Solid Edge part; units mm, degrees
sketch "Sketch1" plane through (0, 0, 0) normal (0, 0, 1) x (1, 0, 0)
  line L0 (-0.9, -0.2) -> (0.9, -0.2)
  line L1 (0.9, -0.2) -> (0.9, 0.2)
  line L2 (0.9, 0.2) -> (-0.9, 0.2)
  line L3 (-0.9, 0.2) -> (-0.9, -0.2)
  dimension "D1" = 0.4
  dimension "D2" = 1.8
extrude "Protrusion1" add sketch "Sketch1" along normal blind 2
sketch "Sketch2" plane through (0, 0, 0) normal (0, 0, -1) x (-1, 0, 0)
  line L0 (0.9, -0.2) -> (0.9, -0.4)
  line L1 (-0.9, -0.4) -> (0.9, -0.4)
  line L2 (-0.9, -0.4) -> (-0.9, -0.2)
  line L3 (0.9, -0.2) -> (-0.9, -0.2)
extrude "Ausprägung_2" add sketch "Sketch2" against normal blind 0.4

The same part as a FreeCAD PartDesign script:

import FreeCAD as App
import Part
import Sketcher


def add_polygon(sketch, points):
    """Adds a closed chain of lines whose ends are joined by coincident constraints."""
    first, n = sketch.GeometryCount, len(points)
    for a, b in zip(points, points[1:] + points[:1]):
        sketch.addGeometry(Part.LineSegment(App.Vector(*a, 0), App.Vector(*b, 0)), False)
    for i in range(n):
        sketch.addConstraint(Sketcher.Constraint("Coincident", first + i, 2, first + (i + 1) % n, 1))

doc = App.newDocument("Part")
body = doc.addObject("PartDesign::Body", "Body")

# Sketch on XY plane
sketch1 = body.newObject("Sketcher::SketchObject", "Sketch")
sketch1.AttachmentSupport = (doc.getObject("XY_Plane"), [""])
sketch1.MapMode = "FlatFace"
add_polygon(sketch1, [(-0.9, 0.2), (-0.9, -0.2), (0.9, -0.2), (0.9, 0.2)])  # lines 0-3
sketch1.addConstraint(Sketcher.Constraint("Vertical", 0))
sketch1.addConstraint(Sketcher.Constraint("Horizontal", 1))
sketch1.addConstraint(Sketcher.Constraint("Vertical", 2))
sketch1.addConstraint(Sketcher.Constraint("Horizontal", 3))
sketch1.addConstraint(Sketcher.Constraint("Symmetric", 0, 2, 2, 2, -1, 1))
sketch1.addConstraint(Sketcher.Constraint("DistanceX", 0, 2, -1, 1, 0.9))
sketch1.addConstraint(Sketcher.Constraint("DistanceY", 0, 2, 0, 1, 0.4))
pad1 = body.newObject("PartDesign::Pad", "Pad")
pad1.Profile = sketch1
pad1.Length = 2

# Sketch on XY plane
sketch2 = body.newObject("Sketcher::SketchObject", "Sketch001")
sketch2.AttachmentSupport = (doc.getObject("XY_Plane"), [""])
sketch2.MapMode = "FlatFace"
add_polygon(sketch2, [(-0.9, -0.4), (-0.9, -0.2), (0.9, -0.2), (0.9, -0.4)])  # lines 0-3
sketch2.addConstraint(Sketcher.Constraint("Vertical", 0))
sketch2.addConstraint(Sketcher.Constraint("Horizontal", 1))
sketch2.addConstraint(Sketcher.Constraint("Vertical", 2))
sketch2.addConstraint(Sketcher.Constraint("Horizontal", 3))
sketch2.addConstraint(Sketcher.Constraint("DistanceX", 1, 1, 1, 2, 1.8))
sketch2.addConstraint(Sketcher.Constraint("DistanceY", 0, 1, 0, 2, 0.2))
sketch2.addConstraint(Sketcher.Constraint("DistanceX", 0, 2, -1, 1, 0.9))
sketch2.addConstraint(Sketcher.Constraint("DistanceY", 0, 2, -1, 1, 0.2))
pad2 = body.newObject("PartDesign::Pad", "Pad001")
pad2.Profile = sketch2
pad2.Length = 0.4

doc.recompute()
